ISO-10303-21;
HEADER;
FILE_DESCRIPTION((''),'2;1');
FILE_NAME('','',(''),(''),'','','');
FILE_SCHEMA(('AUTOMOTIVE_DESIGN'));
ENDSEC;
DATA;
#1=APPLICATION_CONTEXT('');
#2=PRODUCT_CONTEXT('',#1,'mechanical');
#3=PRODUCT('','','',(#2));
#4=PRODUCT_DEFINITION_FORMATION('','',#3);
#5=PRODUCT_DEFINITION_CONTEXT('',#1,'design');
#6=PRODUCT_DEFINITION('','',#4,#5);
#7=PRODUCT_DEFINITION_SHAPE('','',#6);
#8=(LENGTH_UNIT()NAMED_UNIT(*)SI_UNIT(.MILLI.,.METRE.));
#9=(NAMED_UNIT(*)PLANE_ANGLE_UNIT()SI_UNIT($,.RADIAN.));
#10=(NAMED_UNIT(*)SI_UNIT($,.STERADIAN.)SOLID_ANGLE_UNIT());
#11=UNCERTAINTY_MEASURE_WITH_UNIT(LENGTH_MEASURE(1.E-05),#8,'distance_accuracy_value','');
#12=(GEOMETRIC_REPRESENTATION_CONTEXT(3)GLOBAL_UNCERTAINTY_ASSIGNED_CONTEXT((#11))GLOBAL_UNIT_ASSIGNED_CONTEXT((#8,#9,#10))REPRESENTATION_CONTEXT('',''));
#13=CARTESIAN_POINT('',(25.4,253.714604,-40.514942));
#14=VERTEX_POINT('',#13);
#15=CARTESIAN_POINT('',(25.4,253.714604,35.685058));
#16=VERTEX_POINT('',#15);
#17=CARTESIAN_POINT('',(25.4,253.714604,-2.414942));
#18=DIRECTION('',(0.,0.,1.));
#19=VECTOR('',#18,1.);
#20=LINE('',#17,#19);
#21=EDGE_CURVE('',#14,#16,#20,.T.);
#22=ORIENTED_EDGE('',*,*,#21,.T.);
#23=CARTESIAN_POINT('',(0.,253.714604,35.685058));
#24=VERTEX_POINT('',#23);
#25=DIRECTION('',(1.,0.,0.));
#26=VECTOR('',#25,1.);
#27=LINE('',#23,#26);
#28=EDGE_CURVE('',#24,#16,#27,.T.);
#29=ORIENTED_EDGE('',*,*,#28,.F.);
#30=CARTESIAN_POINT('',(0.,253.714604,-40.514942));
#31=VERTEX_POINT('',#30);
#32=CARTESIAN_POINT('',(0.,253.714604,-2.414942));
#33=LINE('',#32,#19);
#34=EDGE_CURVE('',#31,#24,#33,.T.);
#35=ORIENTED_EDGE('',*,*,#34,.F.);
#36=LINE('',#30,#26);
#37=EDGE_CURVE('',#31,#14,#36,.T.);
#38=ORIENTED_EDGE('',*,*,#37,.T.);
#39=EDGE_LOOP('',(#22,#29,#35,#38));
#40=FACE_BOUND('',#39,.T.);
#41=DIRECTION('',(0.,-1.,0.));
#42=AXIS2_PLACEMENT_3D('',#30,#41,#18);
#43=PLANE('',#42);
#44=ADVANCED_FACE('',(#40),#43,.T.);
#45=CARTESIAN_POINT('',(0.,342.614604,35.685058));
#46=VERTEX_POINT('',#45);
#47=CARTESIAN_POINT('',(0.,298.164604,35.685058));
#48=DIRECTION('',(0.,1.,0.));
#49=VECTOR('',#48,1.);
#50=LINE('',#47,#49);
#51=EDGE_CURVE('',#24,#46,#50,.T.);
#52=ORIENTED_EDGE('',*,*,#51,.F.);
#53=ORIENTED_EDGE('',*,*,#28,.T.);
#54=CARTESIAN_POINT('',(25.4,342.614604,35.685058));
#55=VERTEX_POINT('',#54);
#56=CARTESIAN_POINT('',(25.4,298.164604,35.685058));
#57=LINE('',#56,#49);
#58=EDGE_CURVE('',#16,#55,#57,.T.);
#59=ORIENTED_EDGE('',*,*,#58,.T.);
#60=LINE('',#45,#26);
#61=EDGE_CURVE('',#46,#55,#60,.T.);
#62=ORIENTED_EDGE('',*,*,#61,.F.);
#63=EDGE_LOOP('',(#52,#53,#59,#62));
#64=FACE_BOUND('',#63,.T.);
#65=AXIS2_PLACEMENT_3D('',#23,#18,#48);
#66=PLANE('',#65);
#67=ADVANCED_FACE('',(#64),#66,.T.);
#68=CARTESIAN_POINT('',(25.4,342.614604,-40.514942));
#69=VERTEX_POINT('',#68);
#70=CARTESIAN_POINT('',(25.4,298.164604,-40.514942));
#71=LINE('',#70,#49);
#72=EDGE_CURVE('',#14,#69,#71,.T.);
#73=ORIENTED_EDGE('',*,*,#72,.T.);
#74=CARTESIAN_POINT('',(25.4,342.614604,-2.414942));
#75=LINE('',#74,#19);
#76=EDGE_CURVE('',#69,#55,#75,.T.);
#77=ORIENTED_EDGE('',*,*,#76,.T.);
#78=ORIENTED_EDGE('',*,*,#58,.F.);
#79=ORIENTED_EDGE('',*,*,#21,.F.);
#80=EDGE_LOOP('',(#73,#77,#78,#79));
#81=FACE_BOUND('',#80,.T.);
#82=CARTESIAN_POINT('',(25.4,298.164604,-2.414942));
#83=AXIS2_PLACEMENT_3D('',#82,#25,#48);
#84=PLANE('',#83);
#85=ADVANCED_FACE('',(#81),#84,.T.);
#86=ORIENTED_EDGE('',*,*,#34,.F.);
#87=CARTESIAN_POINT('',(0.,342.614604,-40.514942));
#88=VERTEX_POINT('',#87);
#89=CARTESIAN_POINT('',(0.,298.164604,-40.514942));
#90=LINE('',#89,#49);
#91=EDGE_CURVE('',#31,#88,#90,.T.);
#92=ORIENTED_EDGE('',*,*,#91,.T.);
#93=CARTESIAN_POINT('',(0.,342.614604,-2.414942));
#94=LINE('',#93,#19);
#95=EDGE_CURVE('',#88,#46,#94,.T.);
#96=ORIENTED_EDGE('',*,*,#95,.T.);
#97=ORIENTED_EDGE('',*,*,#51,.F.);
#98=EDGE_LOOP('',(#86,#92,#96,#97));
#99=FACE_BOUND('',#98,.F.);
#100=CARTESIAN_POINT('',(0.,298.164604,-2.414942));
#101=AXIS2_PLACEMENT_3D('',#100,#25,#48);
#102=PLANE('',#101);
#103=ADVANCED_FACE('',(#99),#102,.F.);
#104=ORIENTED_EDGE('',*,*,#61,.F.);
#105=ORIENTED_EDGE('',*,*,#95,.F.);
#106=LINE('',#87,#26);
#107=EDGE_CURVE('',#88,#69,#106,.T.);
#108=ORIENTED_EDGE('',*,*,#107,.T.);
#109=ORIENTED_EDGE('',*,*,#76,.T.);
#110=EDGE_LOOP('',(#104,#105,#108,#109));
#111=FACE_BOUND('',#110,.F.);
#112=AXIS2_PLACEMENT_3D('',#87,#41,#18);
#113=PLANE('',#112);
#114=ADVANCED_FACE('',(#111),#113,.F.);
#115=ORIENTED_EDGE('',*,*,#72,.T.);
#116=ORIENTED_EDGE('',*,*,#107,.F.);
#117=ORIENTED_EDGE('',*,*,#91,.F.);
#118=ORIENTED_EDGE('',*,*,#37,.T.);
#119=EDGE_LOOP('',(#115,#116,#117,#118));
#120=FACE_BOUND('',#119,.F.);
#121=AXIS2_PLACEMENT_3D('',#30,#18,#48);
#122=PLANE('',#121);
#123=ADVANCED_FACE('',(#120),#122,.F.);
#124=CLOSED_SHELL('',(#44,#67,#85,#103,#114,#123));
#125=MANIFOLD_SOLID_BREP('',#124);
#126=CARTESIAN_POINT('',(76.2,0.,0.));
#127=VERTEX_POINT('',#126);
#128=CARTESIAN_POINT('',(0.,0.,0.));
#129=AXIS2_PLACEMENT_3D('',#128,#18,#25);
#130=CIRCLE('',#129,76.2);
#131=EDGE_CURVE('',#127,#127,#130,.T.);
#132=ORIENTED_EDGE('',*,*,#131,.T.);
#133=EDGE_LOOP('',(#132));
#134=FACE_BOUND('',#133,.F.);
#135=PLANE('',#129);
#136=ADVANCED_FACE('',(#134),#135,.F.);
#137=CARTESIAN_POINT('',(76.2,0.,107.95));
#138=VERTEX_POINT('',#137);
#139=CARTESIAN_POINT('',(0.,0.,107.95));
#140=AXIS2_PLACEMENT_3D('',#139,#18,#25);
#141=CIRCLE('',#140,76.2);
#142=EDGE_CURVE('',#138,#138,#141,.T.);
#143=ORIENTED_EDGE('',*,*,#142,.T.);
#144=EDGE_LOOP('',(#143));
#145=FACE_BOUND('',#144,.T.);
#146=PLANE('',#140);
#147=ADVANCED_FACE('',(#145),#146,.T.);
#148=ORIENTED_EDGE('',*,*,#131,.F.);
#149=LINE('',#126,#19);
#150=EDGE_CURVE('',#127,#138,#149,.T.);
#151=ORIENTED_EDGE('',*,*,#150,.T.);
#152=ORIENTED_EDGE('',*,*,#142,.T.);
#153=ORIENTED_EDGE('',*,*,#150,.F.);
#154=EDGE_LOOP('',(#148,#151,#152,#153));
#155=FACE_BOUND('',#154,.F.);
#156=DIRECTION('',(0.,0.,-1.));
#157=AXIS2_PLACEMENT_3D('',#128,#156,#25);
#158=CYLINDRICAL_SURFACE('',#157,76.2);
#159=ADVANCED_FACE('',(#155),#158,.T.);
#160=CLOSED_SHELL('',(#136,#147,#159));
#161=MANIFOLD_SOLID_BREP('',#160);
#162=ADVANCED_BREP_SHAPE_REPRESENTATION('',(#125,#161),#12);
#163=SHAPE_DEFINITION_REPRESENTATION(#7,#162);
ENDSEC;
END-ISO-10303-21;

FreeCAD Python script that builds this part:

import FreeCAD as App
import Part
import Sketcher
Q = App.Units.Quantity


def add_polygon(sketch, points):
    """Adds a closed chain of lines whose ends are joined by coincident constraints."""
    first, n = sketch.GeometryCount, len(points)
    for a, b in zip(points, points[1:] + points[:1]):
        sketch.addGeometry(Part.LineSegment(App.Vector(*a, 0), App.Vector(*b, 0)), False)
    for i in range(n):
        sketch.addConstraint(Sketcher.Constraint("Coincident", first + i, 2, first + (i + 1) % n, 1))

doc = App.newDocument("Part")
body = doc.addObject("PartDesign::Body", "Body")

sketch1 = body.newObject("Sketcher::SketchObject", "Sketch")
sketch1.AttachmentSupport = (doc.getObject("XY_Plane"), [""])
sketch1.MapMode = "FlatFace"
sketch1.addGeometry(Part.Circle(App.Vector(0, 0, 0), App.Vector(0, 0, 1), 76), False)
sketch1.addConstraint(Sketcher.Constraint("Coincident", 0, 3, -1, 1))
sketch1.addConstraint(Sketcher.Constraint("Diameter", 0, Q("6 in")))
pad1 = body.newObject("PartDesign::Pad", "Pad")
pad1.Profile = sketch1
pad1.Length = Q("4.25 in")
body2 = doc.addObject("PartDesign::Body", "Body001")

sketch2 = body2.newObject("Sketcher::SketchObject", "Sketch001")
sketch2.AttachmentSupport = (doc.getObject("YZ_Plane001"), [""])
sketch2.MapMode = "FlatFace"
add_polygon(sketch2, [(254, 36), (254, -41), (343, -41), (343, 36)])
sketch2.addConstraint(Sketcher.Constraint("Vertical", 0))
sketch2.addConstraint(Sketcher.Constraint("Horizontal", 1))
sketch2.addConstraint(Sketcher.Constraint("Vertical", 2))
sketch2.addConstraint(Sketcher.Constraint("Horizontal", 3))
sketch2.addConstraint(Sketcher.Constraint("DistanceY", 0, 2, 0, 1, Q("3 in")))
sketch2.addConstraint(Sketcher.Constraint("DistanceX", 1, 1, 1, 2, Q("3.5 in")))
sketch2.addConstraint(Sketcher.Constraint("DistanceY", 0, 2, -1, 1, 40.514942))
sketch2.addConstraint(Sketcher.Constraint("DistanceX", -1, 1, 0, 2, 253.714604))
pad2 = body2.newObject("PartDesign::Pad", "Pad001")
pad2.Profile = sketch2
pad2.Length = Q("1 in")

doc.recompute()
